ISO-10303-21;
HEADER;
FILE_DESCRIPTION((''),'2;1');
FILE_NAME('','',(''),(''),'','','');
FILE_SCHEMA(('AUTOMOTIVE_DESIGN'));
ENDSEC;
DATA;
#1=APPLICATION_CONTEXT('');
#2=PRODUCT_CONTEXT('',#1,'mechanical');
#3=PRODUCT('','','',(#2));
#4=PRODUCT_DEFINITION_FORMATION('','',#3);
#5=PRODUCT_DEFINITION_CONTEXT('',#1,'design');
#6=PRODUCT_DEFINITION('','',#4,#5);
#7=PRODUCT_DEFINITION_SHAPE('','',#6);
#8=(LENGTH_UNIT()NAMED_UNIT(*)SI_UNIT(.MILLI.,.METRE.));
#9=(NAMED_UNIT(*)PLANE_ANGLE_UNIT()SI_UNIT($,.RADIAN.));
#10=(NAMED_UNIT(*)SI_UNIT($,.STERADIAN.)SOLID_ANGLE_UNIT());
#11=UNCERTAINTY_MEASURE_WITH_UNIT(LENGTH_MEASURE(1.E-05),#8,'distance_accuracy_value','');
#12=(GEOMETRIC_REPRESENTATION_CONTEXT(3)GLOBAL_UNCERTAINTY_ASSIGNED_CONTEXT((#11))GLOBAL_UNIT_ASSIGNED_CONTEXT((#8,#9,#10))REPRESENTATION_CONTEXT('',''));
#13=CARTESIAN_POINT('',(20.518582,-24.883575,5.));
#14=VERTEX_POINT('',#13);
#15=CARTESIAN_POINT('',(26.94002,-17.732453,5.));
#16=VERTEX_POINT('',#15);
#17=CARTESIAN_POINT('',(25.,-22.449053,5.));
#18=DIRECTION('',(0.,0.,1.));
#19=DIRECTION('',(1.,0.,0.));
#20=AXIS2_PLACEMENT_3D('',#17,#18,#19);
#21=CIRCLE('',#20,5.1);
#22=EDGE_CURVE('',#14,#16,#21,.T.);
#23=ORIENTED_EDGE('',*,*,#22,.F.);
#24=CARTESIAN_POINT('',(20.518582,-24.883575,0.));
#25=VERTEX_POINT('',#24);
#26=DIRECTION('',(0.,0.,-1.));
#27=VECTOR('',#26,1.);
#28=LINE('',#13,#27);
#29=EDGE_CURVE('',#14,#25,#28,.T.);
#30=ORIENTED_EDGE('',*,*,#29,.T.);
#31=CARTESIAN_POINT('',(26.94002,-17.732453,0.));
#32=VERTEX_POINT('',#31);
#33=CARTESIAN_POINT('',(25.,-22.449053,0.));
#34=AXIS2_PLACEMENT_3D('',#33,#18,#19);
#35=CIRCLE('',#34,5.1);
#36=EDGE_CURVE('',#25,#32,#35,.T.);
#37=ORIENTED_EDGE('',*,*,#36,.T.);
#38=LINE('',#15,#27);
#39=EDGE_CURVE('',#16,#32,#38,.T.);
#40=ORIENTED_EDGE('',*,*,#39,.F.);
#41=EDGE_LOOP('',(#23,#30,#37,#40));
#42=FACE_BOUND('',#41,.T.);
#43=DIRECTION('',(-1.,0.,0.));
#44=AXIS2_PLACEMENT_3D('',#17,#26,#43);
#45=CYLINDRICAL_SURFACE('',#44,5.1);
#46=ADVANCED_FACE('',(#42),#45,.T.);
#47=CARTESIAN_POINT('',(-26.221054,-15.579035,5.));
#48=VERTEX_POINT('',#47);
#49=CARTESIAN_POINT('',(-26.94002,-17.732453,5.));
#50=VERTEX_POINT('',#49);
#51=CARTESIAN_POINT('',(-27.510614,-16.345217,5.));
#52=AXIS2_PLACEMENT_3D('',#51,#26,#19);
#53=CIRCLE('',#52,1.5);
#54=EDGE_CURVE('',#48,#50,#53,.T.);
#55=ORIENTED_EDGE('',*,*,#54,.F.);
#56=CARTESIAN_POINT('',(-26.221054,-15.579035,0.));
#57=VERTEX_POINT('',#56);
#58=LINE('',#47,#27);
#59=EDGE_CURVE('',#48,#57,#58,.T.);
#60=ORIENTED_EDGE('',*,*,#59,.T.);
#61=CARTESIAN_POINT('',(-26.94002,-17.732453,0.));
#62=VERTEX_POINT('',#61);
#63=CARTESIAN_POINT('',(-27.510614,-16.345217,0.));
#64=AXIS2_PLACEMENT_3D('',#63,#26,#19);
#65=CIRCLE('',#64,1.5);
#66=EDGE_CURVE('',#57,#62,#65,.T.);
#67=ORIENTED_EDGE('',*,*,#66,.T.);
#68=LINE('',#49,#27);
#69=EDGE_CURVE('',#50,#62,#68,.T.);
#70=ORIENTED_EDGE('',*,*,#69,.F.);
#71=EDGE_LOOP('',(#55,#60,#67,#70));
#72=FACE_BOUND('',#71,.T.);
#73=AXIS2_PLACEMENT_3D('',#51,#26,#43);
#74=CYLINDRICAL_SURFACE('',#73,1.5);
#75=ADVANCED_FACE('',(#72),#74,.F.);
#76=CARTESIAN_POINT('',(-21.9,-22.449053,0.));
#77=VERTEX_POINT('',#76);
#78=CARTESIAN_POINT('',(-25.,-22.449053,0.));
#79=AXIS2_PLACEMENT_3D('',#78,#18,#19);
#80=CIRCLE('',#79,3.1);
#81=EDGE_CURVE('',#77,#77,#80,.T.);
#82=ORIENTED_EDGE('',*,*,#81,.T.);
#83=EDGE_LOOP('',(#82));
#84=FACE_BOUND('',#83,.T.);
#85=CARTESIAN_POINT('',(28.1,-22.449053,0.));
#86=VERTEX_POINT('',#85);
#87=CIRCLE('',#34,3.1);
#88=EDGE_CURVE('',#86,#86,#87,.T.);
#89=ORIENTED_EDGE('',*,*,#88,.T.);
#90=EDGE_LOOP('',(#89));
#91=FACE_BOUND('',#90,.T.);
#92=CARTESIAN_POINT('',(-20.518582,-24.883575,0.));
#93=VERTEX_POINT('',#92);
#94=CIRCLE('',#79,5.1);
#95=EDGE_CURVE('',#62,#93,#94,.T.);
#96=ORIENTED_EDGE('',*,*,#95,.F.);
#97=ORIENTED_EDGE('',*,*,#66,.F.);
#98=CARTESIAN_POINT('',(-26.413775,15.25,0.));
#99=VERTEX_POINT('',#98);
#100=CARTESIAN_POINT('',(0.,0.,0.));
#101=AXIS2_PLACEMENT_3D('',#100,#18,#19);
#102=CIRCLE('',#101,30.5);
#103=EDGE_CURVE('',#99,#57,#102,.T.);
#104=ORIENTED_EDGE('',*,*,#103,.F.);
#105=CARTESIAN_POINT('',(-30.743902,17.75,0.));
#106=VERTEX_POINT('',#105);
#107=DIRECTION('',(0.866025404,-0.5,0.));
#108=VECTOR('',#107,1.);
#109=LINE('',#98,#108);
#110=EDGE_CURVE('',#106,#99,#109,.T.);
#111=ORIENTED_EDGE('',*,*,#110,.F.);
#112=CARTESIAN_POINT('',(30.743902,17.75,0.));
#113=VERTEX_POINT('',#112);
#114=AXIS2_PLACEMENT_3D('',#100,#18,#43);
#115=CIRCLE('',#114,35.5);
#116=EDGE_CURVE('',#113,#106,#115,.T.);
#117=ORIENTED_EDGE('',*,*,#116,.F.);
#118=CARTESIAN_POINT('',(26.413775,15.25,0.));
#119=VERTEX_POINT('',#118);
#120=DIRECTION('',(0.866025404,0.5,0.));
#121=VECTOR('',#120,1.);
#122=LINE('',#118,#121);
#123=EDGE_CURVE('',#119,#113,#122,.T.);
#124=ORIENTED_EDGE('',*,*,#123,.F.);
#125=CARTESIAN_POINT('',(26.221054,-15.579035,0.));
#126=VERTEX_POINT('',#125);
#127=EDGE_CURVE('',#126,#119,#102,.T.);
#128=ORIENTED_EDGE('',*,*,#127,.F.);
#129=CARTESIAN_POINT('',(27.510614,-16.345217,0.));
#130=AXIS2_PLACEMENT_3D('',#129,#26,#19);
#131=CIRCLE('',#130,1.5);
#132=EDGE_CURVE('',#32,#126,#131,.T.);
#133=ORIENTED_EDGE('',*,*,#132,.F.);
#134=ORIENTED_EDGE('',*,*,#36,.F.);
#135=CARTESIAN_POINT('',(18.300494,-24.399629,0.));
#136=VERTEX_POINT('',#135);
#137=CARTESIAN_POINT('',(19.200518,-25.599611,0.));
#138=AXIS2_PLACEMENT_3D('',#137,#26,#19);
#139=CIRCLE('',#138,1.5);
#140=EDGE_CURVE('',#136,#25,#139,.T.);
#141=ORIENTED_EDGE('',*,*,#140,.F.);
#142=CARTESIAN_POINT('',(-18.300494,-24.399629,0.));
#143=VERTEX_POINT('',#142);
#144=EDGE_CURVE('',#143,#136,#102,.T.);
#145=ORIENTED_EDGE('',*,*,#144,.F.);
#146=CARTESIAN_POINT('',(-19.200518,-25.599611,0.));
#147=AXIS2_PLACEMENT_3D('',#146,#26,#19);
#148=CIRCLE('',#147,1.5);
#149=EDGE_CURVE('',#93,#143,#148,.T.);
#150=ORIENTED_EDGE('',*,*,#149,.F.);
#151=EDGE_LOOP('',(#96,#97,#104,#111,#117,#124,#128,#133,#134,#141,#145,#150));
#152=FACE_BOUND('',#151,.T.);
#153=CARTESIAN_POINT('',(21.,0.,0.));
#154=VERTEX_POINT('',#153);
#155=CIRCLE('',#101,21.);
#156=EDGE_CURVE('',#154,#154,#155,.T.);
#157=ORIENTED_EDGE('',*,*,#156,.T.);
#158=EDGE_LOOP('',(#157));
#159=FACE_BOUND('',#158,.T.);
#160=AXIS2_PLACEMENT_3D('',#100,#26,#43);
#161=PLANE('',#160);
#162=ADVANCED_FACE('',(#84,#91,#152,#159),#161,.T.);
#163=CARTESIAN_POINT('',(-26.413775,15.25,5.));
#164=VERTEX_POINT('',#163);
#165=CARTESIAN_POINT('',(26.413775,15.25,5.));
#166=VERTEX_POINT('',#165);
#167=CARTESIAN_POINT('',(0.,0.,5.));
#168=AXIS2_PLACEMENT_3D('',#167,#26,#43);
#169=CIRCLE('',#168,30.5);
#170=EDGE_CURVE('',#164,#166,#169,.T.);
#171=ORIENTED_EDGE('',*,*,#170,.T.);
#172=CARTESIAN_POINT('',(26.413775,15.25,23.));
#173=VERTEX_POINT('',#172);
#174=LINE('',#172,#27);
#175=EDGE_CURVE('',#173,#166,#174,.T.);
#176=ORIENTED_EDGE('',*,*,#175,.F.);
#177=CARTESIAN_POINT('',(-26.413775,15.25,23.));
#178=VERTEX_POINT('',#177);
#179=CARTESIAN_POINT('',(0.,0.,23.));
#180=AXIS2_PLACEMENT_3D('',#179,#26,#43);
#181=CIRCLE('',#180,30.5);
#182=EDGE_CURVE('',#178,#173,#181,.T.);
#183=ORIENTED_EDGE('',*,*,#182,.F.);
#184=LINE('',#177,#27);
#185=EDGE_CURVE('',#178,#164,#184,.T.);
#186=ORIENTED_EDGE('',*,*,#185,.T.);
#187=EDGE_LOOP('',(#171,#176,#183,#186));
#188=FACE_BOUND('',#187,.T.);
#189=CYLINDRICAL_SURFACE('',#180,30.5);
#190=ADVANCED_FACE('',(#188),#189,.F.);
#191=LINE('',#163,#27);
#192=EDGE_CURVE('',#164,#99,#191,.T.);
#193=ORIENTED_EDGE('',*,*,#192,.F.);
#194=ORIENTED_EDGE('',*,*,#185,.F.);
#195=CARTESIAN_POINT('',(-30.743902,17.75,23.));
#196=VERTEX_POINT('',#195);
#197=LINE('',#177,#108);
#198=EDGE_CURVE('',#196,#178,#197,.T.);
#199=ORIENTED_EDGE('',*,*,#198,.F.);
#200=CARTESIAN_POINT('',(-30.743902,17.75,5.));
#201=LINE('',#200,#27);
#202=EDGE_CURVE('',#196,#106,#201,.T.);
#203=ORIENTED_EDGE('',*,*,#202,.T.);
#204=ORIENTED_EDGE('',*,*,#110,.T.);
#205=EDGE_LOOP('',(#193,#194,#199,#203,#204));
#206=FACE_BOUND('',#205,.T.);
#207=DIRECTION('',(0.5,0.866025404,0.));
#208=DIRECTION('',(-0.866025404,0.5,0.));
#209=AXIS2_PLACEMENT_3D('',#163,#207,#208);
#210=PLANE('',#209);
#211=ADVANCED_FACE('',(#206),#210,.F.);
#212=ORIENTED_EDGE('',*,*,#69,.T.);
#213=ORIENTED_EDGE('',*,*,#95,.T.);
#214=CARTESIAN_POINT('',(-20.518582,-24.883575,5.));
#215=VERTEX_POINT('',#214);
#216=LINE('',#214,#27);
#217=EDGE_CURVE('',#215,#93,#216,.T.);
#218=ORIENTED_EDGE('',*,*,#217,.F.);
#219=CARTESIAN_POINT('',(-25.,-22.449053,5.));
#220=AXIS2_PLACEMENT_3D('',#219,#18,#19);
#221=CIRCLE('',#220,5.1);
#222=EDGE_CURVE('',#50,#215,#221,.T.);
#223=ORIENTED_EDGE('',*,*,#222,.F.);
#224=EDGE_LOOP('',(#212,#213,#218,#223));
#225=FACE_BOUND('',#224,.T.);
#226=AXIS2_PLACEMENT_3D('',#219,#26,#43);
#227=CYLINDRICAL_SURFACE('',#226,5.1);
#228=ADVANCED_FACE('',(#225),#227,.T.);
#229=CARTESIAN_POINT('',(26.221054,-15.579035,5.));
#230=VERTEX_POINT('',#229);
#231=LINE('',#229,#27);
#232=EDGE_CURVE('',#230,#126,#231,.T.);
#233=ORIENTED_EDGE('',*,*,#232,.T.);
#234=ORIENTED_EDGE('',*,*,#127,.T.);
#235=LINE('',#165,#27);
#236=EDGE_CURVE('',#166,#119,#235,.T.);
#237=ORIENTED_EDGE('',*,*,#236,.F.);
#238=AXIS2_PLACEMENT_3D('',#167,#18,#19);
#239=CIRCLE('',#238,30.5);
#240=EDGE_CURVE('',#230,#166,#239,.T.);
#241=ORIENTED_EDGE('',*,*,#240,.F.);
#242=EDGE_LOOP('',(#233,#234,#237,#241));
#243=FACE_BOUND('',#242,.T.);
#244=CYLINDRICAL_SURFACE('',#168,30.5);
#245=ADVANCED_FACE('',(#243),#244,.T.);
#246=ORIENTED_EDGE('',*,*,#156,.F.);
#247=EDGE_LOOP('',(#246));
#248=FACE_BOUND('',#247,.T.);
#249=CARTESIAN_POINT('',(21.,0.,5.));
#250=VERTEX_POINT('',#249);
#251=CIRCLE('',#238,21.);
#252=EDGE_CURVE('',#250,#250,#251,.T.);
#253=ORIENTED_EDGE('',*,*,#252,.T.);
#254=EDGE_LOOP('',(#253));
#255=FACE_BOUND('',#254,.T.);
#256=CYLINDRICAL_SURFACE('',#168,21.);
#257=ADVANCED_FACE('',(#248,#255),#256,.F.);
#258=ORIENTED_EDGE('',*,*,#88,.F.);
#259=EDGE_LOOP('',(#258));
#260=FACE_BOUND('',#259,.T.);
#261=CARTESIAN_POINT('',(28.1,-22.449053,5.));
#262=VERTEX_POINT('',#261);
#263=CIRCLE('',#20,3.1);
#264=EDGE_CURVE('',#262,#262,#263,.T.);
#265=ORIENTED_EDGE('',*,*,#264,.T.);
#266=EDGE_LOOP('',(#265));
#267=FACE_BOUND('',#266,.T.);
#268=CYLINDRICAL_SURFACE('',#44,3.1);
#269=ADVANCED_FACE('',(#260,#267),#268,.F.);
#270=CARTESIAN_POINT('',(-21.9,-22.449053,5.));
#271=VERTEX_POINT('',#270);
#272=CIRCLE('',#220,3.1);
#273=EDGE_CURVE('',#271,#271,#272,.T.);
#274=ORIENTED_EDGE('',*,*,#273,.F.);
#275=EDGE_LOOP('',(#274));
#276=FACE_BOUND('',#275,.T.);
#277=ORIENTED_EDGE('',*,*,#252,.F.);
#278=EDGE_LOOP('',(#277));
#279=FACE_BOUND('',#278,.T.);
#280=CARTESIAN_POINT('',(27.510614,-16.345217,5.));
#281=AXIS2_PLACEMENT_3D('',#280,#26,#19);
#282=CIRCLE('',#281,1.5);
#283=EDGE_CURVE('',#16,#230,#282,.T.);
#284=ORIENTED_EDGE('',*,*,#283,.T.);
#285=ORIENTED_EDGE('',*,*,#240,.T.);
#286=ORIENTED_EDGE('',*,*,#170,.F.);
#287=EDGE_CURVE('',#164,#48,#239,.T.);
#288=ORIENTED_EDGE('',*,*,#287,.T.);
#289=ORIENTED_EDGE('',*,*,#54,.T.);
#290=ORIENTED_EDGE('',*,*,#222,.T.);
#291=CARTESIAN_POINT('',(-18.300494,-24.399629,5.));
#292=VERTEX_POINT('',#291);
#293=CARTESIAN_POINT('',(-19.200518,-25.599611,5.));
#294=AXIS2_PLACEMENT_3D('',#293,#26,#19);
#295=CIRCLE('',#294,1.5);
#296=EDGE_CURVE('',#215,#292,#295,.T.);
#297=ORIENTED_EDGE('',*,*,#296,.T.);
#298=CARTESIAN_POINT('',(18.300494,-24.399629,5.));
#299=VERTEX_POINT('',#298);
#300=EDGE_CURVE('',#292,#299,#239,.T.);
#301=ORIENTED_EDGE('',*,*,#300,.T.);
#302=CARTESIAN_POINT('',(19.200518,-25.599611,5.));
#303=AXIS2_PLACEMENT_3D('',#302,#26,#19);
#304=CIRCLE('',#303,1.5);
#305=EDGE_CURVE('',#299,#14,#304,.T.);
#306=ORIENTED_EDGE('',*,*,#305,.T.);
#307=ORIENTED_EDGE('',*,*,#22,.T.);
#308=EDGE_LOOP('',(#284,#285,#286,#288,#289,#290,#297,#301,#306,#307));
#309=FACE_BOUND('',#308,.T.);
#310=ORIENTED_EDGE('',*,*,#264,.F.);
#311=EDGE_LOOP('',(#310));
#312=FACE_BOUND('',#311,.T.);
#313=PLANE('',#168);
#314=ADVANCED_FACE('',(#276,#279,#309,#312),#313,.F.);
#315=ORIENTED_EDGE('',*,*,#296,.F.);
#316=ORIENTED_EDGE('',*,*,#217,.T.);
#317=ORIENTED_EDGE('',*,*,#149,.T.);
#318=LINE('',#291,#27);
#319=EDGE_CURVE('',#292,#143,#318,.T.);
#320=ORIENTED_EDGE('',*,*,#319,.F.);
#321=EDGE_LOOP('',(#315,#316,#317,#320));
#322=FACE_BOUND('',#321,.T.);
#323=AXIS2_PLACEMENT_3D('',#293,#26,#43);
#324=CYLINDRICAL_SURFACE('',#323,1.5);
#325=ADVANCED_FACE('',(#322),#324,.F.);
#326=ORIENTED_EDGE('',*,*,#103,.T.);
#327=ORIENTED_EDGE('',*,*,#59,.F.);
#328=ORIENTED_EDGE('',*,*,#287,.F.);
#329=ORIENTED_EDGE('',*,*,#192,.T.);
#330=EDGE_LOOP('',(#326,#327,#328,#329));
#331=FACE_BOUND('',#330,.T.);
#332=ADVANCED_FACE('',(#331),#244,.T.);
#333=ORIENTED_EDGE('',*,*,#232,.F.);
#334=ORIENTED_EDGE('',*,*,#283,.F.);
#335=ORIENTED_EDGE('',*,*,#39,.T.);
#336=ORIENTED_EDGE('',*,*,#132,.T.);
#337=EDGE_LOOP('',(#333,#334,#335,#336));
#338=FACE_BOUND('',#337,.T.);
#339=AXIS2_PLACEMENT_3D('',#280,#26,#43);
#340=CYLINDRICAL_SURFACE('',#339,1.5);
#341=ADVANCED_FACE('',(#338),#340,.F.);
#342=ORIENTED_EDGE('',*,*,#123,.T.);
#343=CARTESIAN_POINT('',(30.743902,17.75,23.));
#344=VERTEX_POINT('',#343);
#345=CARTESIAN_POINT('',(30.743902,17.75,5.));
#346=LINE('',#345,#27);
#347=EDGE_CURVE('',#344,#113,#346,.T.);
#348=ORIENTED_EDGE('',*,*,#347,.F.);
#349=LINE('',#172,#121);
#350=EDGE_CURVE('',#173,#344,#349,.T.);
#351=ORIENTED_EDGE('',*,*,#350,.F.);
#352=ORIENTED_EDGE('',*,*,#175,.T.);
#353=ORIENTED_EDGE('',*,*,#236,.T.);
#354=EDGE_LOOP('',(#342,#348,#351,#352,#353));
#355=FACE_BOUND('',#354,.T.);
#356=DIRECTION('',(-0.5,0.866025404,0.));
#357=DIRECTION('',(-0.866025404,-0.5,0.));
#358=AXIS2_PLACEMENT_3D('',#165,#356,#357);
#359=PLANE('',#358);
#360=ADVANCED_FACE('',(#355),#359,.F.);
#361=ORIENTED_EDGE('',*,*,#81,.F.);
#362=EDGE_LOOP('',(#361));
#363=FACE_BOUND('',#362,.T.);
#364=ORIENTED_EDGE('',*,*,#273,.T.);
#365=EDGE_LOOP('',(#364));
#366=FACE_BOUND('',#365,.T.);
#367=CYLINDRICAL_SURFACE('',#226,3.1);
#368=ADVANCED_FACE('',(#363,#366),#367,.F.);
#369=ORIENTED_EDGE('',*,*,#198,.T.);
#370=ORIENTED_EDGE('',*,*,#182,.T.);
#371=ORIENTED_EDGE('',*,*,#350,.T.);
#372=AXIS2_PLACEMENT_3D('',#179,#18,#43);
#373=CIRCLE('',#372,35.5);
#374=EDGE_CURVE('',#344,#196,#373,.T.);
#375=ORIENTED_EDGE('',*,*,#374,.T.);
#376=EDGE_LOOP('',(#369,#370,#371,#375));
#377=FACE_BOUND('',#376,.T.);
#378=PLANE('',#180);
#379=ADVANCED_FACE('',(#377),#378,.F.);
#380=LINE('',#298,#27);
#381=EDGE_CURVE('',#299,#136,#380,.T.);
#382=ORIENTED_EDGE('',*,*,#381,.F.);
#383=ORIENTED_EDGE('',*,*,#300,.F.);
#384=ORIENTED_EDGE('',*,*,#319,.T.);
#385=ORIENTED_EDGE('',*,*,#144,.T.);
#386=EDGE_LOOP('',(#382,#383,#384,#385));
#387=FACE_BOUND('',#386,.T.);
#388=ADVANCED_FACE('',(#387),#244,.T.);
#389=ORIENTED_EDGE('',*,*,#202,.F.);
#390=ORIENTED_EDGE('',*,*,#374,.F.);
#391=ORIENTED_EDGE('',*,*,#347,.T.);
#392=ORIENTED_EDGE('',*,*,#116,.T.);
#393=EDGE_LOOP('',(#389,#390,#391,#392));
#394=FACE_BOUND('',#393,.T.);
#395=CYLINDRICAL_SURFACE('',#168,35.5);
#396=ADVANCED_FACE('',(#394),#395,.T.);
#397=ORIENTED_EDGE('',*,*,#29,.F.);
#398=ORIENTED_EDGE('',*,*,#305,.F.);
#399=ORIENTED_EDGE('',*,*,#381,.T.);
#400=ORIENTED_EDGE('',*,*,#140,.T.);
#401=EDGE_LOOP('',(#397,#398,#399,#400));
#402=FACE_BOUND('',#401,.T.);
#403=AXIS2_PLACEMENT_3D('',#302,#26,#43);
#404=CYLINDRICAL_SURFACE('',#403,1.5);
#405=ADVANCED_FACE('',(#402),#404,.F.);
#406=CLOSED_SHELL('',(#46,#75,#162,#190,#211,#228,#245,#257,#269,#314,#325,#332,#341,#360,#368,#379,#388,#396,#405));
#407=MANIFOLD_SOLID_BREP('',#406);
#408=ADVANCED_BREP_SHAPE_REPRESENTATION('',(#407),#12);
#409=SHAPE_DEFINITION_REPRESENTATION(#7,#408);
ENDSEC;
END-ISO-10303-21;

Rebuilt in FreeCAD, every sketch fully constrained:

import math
import FreeCAD as App
import Part
import Sketcher
Q = App.Units.Quantity

doc = App.newDocument("Part")
body = doc.addObject("PartDesign::Body", "Body")

# Sketch on XY plane
sketch1 = body.newObject("Sketcher::SketchObject", "Sketch")
sketch1.AttachmentSupport = (doc.getObject("XY_Plane"), [""])
sketch1.MapMode = "FlatFace"
sketch1.addGeometry(Part.LineSegment(App.Vector(-30.743902, 17.75, 0), App.Vector(-26.413775, 15.25, 0)), False)
sketch1.addGeometry(Part.ArcOfCircle(Part.Circle(App.Vector(0, 0, 0), App.Vector(0, 0, 1), 30.5), math.radians(150), math.radians(210.716335)), False)
sketch1.addGeometry(Part.ArcOfCircle(Part.Circle(App.Vector(-27.510614, -16.345217, 0), App.Vector(0, 0, 1), 1.5), math.radians(-67.641783), math.radians(30.716335)), False)
sketch1.addGeometry(Part.ArcOfCircle(Part.Circle(App.Vector(-25, -22.449053, 0), App.Vector(0, 0, 1), 5.1), math.radians(112.358217), math.radians(331.48706)), False)
sketch1.addGeometry(Part.ArcOfCircle(Part.Circle(App.Vector(-19.200518, -25.599611, 0), App.Vector(0, 0, 1), 1.5), math.radians(53.128942), math.radians(151.48706)), False)
sketch1.addGeometry(Part.ArcOfCircle(Part.Circle(App.Vector(0, 0, 0), App.Vector(0, 0, 1), 30.5), math.radians(-126.871058), math.radians(-53.128942)), False)
sketch1.addGeometry(Part.ArcOfCircle(Part.Circle(App.Vector(19.200518, -25.599611, 0), App.Vector(0, 0, 1), 1.5), math.radians(28.51294), math.radians(126.871058)), False)
sketch1.addGeometry(Part.ArcOfCircle(Part.Circle(App.Vector(25, -22.449053, 0), App.Vector(0, 0, 1), 5.1), math.radians(-151.48706), math.radians(67.641783)), False)
sketch1.addGeometry(Part.ArcOfCircle(Part.Circle(App.Vector(27.510614, -16.345217, 0), App.Vector(0, 0, 1), 1.5), math.radians(149.283665), math.radians(247.641783)), False)
sketch1.addGeometry(Part.ArcOfCircle(Part.Circle(App.Vector(0, 0, 0), App.Vector(0, 0, 1), 30.5), math.radians(-30.716335), math.radians(30)), False)
sketch1.addGeometry(Part.LineSegment(App.Vector(26.413775, 15.25, 0), App.Vector(30.743902, 17.75, 0)), False)
sketch1.addGeometry(Part.ArcOfCircle(Part.Circle(App.Vector(0, 0, 0), App.Vector(0, 0, 1), 35.5), math.radians(30), math.radians(150)), False)
sketch1.addGeometry(Part.Circle(App.Vector(25, -22.449053, 0), App.Vector(0, 0, 1), 3.1), False)
sketch1.addGeometry(Part.Circle(App.Vector(-25, -22.449053, 0), App.Vector(0, 0, 1), 3.1), False)
sketch1.addGeometry(Part.Circle(App.Vector(0, 0, 0), App.Vector(0, 0, 1), 21), False)
sketch1.addConstraint(Sketcher.Constraint("Coincident", 0, 2, 1, 1))
sketch1.addConstraint(Sketcher.Constraint("Tangent", 1, 2, 2, 2))
sketch1.addConstraint(Sketcher.Constraint("Tangent", 2, 1, 3, 1))
sketch1.addConstraint(Sketcher.Constraint("Tangent", 3, 2, 4, 2))
sketch1.addConstraint(Sketcher.Constraint("Tangent", 4, 1, 5, 1))
sketch1.addConstraint(Sketcher.Constraint("Tangent", 5, 2, 6, 2))
sketch1.addConstraint(Sketcher.Constraint("Tangent", 6, 1, 7, 1))
sketch1.addConstraint(Sketcher.Constraint("Tangent", 7, 2, 8, 2))
sketch1.addConstraint(Sketcher.Constraint("Tangent", 8, 1, 9, 1))
sketch1.addConstraint(Sketcher.Constraint("Coincident", 9, 2, 10, 1))
sketch1.addConstraint(Sketcher.Constraint("Coincident", 10, 2, 11, 1))
sketch1.addConstraint(Sketcher.Constraint("Coincident", 11, 2, 0, 1))
sketch1.addConstraint(Sketcher.Constraint("Coincident", 1, 3, -1, 1))
sketch1.addConstraint(Sketcher.Constraint("Coincident", 5, 3, -1, 1))
sketch1.addConstraint(Sketcher.Constraint("Coincident", 9, 3, -1, 1))
sketch1.addConstraint(Sketcher.Constraint("Coincident", 11, 3, -1, 1))
sketch1.addConstraint(Sketcher.Constraint("Coincident", 14, 3, -1, 1))
sketch1.addConstraint(Sketcher.Constraint("Coincident", 12, 3, 7, 3))
sketch1.addConstraint(Sketcher.Constraint("Coincident", 13, 3, 3, 3))
sketch1.addConstraint(Sketcher.Constraint("Equal", 2, 4))
sketch1.addConstraint(Sketcher.Constraint("Equal", 1, 5))
sketch1.addConstraint(Sketcher.Constraint("Equal", 4, 6))
sketch1.addConstraint(Sketcher.Constraint("Equal", 3, 7))
sketch1.addConstraint(Sketcher.Constraint("Equal", 6, 8))
sketch1.addConstraint(Sketcher.Constraint("Equal", 5, 9))
sketch1.addConstraint(Sketcher.Constraint("Equal", 12, 13))
sketch1.addConstraint(Sketcher.Constraint("Symmetric", 3, 3, 7, 3, -2))
sketch1.addConstraint(Sketcher.Constraint("Horizontal", 0, 2, 9, 2))
sketch1.addConstraint(Sketcher.Constraint("Horizontal", 10, 2, 11, 2))
sketch1.addConstraint(Sketcher.Constraint("Diameter", 14, Q("42 mm")))
sketch1.addConstraint(Sketcher.Constraint("Diameter", 12, Q("6.2 mm")))
sketch1.addConstraint(Sketcher.Constraint("Radius", 1, Q("30.5 mm")))
sketch1.addConstraint(Sketcher.Constraint("Radius", 2, Q("1.5 mm")))
sketch1.addConstraint(Sketcher.Constraint("Radius", 3, Q("5.1 mm")))
sketch1.addConstraint(Sketcher.Constraint("Radius", 11, Q("35.5 mm")))
sketch1.addConstraint(Sketcher.Constraint("Angle", 0, Q("-30 deg")))
sketch1.addConstraint(Sketcher.Constraint("DistanceX", 3, 3, -1, 1, Q("25 mm")))
sketch1.addConstraint(Sketcher.Constraint("DistanceY", -1, 1, 0, 2, Q("15.25 mm")))
sketch1.addConstraint(Sketcher.Constraint("DistanceY", 3, 3, 2, 1, Q("4.716601 mm")))
pad1 = body.newObject("PartDesign::Pad", "Pad")
pad1.Profile = sketch1
pad1.Length = 5

# Sketch on XY plane
sketch2 = body.newObject("Sketcher::SketchObject", "Sketch001")
sketch2.AttachmentSupport = (doc.getObject("XY_Plane"), [""])
sketch2.MapMode = "FlatFace"
sketch2.AttachmentOffset = App.Placement(App.Vector(0, 0, 5), App.Rotation())
sketch2.addGeometry(Part.LineSegment(App.Vector(-30.743902, 17.75, 0), App.Vector(-26.413775, 15.25, 0)), False)
sketch2.addGeometry(Part.ArcOfCircle(Part.Circle(App.Vector(0, 0, 0), App.Vector(0, 0, 1), 30.5), math.radians(30), math.radians(150)), False)
sketch2.addGeometry(Part.LineSegment(App.Vector(26.413775, 15.25, 0), App.Vector(30.743902, 17.75, 0)), False)
sketch2.addGeometry(Part.ArcOfCircle(Part.Circle(App.Vector(0, 0, 0), App.Vector(0, 0, 1), 35.5), math.radians(30), math.radians(150)), False)
sketch2.addConstraint(Sketcher.Constraint("Coincident", 0, 2, 1, 2))
sketch2.addConstraint(Sketcher.Constraint("Coincident", 1, 1, 2, 1))
sketch2.addConstraint(Sketcher.Constraint("Coincident", 2, 2, 3, 1))
sketch2.addConstraint(Sketcher.Constraint("Coincident", 3, 2, 0, 1))
sketch2.addConstraint(Sketcher.Constraint("Coincident", 1, 3, -1, 1))
sketch2.addConstraint(Sketcher.Constraint("Coincident", 3, 3, -1, 1))
sketch2.addConstraint(Sketcher.Constraint("Horizontal", 0, 2, 1, 1))
sketch2.addConstraint(Sketcher.Constraint("Horizontal", 2, 2, 3, 2))
sketch2.addConstraint(Sketcher.Constraint("Radius", 1, Q("30.5 mm")))
sketch2.addConstraint(Sketcher.Constraint("Radius", 3, Q("35.5 mm")))
sketch2.addConstraint(Sketcher.Constraint("Angle", 0, Q("-30 deg")))
sketch2.addConstraint(Sketcher.Constraint("DistanceY", -1, 1, 0, 2, Q("15.25 mm")))
pad2 = body.newObject("PartDesign::Pad", "Pad001")
pad2.Profile = sketch2
pad2.Length = 18

doc.recompute()
